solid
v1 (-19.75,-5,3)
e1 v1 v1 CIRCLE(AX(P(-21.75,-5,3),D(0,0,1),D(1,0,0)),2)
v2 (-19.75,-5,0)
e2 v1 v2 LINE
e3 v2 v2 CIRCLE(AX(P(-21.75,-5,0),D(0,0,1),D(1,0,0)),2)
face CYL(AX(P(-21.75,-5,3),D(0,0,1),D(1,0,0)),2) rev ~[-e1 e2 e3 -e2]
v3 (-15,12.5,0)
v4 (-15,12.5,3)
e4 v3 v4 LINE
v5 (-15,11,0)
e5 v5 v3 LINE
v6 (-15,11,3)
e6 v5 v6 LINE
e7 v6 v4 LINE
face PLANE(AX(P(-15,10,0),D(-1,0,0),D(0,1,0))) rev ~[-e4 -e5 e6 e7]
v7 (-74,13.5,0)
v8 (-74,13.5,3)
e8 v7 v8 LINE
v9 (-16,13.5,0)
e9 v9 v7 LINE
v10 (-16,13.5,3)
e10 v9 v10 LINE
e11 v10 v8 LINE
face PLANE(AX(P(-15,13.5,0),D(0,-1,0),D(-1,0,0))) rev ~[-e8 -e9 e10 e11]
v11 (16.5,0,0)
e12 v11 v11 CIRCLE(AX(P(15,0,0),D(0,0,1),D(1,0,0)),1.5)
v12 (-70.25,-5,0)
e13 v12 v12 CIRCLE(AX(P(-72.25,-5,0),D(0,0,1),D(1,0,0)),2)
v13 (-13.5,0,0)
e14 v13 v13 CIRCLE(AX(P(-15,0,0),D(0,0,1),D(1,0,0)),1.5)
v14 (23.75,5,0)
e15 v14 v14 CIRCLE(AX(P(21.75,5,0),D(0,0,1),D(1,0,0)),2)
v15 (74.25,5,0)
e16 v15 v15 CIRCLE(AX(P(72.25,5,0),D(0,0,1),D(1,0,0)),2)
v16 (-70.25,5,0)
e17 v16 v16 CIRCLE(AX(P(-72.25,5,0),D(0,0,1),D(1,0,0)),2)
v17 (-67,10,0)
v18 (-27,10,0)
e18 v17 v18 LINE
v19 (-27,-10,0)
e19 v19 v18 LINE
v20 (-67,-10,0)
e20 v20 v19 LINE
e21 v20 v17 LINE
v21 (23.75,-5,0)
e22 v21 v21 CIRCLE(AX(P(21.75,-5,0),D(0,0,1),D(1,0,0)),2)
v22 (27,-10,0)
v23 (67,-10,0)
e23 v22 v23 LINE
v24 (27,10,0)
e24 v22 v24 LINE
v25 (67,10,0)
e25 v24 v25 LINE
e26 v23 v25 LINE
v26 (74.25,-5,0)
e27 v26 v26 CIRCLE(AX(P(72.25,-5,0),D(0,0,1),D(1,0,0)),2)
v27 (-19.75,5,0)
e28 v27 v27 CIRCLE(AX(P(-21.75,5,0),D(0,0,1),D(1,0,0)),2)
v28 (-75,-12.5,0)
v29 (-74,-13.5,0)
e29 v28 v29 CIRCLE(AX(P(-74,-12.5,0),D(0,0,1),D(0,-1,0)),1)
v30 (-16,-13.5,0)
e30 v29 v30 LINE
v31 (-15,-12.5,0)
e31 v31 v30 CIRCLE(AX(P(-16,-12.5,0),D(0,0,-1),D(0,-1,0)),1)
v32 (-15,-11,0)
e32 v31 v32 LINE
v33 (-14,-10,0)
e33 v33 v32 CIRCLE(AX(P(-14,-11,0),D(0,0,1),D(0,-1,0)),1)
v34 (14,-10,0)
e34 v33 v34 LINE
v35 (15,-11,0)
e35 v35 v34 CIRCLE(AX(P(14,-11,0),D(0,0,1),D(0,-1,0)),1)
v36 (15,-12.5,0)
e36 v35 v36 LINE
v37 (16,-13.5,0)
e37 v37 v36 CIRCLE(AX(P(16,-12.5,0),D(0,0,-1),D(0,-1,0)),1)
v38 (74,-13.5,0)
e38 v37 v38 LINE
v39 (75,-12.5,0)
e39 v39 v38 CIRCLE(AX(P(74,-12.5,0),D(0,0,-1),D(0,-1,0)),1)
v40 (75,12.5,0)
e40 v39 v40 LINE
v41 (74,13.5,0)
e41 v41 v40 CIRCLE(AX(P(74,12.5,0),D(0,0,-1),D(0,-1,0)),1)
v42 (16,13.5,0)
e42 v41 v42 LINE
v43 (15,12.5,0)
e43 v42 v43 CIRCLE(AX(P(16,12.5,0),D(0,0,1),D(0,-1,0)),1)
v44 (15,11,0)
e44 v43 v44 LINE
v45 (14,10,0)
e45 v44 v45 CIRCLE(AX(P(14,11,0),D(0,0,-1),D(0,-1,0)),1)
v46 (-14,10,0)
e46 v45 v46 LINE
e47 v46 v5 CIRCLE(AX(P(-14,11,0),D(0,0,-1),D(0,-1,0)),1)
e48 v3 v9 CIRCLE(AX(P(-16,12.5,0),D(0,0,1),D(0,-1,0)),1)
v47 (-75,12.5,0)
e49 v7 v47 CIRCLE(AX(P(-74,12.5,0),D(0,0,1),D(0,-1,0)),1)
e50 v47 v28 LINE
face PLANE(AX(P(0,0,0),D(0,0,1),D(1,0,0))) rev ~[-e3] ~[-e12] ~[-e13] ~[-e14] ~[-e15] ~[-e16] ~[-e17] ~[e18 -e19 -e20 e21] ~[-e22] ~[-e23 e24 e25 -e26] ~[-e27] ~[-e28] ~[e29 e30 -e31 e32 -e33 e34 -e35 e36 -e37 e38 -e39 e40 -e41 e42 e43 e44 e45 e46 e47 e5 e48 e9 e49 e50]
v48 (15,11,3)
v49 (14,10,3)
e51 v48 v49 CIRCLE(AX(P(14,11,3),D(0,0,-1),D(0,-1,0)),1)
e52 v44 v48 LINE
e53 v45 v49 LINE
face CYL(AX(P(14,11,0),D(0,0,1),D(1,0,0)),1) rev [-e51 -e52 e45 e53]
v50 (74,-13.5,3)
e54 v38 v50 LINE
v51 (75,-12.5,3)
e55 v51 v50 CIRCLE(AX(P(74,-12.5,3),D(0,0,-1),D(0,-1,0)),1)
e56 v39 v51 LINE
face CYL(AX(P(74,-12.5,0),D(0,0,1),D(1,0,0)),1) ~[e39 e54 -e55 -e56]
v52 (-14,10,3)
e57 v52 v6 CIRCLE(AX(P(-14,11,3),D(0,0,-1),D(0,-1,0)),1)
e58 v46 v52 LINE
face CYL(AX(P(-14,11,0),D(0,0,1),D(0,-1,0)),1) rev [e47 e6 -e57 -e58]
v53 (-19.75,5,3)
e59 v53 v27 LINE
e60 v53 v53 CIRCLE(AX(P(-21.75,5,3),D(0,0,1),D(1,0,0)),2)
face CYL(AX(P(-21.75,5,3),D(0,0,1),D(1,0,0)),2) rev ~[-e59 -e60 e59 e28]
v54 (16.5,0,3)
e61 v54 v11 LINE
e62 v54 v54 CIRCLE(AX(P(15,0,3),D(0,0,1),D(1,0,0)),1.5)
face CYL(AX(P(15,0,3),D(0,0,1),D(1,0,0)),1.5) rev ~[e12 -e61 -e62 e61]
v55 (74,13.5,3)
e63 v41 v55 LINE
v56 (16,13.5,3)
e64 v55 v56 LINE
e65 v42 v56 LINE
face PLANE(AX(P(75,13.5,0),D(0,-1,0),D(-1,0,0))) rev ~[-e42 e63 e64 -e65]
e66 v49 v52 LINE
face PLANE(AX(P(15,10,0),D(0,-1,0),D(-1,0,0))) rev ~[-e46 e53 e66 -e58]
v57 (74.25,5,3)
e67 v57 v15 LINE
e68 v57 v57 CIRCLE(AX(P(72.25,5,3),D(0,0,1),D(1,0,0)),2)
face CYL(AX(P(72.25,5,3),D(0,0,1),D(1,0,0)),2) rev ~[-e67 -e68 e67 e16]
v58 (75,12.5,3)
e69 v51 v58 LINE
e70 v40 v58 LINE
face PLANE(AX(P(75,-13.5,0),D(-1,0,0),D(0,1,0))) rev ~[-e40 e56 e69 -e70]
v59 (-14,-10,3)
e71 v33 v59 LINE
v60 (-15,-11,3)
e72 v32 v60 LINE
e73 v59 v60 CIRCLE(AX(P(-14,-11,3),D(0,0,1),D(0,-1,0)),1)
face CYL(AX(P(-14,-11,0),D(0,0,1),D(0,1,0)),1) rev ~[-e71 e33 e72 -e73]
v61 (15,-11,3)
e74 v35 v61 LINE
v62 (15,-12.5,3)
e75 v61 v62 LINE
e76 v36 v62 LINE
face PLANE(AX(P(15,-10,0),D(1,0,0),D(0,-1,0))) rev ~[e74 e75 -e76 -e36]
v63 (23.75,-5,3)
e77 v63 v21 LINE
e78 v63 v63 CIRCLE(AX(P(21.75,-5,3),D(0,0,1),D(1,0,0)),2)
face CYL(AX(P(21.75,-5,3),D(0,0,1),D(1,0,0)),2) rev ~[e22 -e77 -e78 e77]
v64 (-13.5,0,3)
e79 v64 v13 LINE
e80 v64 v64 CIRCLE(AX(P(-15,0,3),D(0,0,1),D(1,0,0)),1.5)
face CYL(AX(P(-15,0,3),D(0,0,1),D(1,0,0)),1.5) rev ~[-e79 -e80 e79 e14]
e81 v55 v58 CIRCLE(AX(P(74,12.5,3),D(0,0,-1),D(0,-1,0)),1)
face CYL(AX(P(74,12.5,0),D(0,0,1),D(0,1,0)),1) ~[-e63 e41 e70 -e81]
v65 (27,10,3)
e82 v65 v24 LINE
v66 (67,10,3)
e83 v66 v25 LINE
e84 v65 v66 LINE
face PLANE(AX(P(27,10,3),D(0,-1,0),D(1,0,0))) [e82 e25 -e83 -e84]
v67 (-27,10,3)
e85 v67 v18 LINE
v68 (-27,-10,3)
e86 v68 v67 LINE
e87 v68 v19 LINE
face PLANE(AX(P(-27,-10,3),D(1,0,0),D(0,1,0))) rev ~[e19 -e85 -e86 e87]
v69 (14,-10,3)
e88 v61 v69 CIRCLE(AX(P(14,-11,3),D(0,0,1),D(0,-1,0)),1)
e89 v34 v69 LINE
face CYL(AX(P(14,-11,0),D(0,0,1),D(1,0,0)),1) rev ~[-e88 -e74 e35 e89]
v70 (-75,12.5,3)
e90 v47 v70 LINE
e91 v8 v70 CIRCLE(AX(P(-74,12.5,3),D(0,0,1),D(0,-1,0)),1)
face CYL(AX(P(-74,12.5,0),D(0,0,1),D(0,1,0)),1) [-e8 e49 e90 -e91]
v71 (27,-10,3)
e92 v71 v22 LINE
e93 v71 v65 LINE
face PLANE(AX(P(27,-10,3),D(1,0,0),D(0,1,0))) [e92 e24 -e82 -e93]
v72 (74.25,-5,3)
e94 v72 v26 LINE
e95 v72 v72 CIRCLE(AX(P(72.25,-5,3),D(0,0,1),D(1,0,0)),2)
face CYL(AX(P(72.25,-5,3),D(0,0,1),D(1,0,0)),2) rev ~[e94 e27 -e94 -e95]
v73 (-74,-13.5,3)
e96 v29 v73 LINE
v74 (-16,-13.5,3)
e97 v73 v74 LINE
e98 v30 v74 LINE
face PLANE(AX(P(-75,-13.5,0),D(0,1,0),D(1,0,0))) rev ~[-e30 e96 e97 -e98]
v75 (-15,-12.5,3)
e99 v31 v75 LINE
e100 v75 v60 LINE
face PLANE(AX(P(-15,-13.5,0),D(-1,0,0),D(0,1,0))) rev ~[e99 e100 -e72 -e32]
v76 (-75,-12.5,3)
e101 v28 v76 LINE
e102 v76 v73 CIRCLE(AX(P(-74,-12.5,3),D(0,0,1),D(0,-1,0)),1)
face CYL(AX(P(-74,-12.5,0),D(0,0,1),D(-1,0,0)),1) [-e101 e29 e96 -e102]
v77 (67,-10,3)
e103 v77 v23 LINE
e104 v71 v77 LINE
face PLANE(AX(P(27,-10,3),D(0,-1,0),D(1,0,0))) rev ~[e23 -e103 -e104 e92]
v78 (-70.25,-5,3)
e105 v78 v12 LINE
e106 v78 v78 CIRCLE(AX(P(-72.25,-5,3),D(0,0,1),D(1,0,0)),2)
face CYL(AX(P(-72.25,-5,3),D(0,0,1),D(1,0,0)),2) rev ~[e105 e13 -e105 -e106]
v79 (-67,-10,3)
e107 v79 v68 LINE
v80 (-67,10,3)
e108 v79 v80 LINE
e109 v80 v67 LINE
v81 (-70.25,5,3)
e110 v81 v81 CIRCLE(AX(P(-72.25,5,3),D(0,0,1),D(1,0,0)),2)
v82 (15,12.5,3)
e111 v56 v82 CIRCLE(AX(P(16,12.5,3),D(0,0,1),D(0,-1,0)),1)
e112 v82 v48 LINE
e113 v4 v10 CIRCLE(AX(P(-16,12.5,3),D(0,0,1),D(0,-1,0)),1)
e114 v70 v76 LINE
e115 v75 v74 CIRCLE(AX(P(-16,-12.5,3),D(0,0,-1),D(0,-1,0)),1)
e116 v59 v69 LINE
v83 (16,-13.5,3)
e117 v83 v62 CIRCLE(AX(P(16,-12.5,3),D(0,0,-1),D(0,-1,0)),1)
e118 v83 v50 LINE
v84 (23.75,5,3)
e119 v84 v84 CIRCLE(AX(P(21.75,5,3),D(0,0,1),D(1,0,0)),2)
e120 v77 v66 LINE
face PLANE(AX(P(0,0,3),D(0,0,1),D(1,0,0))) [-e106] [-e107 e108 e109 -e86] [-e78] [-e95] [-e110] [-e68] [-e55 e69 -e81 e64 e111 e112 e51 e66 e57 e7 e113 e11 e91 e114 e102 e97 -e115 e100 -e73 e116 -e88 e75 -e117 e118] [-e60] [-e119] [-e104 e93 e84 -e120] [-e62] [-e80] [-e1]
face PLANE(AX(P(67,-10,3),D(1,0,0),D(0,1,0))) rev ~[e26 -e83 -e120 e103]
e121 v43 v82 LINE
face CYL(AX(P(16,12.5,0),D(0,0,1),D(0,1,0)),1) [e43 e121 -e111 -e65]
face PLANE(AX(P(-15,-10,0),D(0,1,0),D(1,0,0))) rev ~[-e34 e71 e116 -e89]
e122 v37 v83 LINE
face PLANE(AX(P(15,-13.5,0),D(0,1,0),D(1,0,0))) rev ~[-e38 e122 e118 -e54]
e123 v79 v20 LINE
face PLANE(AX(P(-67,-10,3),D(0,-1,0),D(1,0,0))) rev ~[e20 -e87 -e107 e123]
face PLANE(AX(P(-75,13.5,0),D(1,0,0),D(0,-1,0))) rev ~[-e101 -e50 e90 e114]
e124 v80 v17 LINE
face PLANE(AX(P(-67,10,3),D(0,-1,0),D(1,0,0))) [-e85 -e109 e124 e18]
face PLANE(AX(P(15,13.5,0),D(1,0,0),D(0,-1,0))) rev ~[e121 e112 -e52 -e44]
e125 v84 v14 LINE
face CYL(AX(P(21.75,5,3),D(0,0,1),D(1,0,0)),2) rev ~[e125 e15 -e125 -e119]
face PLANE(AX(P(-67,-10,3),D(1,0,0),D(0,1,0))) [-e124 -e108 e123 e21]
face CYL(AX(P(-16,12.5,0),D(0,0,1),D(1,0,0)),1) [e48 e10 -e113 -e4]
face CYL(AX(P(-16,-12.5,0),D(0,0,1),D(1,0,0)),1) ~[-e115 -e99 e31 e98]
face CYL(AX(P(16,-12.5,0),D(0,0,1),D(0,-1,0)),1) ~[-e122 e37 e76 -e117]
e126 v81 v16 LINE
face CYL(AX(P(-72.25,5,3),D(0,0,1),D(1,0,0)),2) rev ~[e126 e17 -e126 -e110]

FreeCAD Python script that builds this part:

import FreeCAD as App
import Part
import Sketcher

V = App.Vector
Q = App.Units.Quantity


def edges_at(feature, points):
    """Names of the edges that pass closest to the given points."""
    edges = feature.Shape.Edges
    near = lambda p: min(range(len(edges)), key=lambda i: edges[i].distToShape(Part.Vertex(*p))[0])
    return sorted({f"Edge{near(p) + 1}" for p in points})

doc = App.newDocument("Part")
body = doc.addObject("PartDesign::Body", "Body")

# Sketch on XY plane
sketch1 = body.newObject("Sketcher::SketchObject", "Sketch")
sketch1.AttachmentSupport = (doc.getObject("XY_Plane"), [""])
sketch1.MapMode = "FlatFace"
sketch1.addGeometry(Part.LineSegment(V(75, 13.5, 0), V(15, 13.5, 0)), False)
sketch1.addGeometry(Part.LineSegment(V(15, 13.5, 0), V(15, 10, 0)), False)
sketch1.addGeometry(Part.LineSegment(V(15, 10, 0), V(-15, 10, 0)), False)
sketch1.addGeometry(Part.LineSegment(V(-15, 10, 0), V(-15, 13.5, 0)), False)
sketch1.addGeometry(Part.LineSegment(V(-15, 13.5, 0), V(-75, 13.5, 0)), False)
sketch1.addGeometry(Part.LineSegment(V(-75, 13.5, 0), V(-75, -13.5, 0)), False)
sketch1.addGeometry(Part.LineSegment(V(-75, -13.5, 0), V(-15, -13.5, 0)), False)
sketch1.addGeometry(Part.LineSegment(V(-15, -13.5, 0), V(-15, -10, 0)), False)
sketch1.addGeometry(Part.LineSegment(V(-15, -10, 0), V(15, -10, 0)), False)
sketch1.addGeometry(Part.LineSegment(V(15, -10, 0), V(15, -13.5, 0)), False)
sketch1.addGeometry(Part.LineSegment(V(15, -13.5, 0), V(75, -13.5, 0)), False)
sketch1.addGeometry(Part.LineSegment(V(75, -13.5, 0), V(75, 13.5, 0)), False)
sketch1.addConstraint(Sketcher.Constraint("Coincident", 0, 2, 1, 1))
sketch1.addConstraint(Sketcher.Constraint("Coincident", 1, 2, 2, 1))
sketch1.addConstraint(Sketcher.Constraint("Coincident", 2, 2, 3, 1))
sketch1.addConstraint(Sketcher.Constraint("Coincident", 3, 2, 4, 1))
sketch1.addConstraint(Sketcher.Constraint("Coincident", 4, 2, 5, 1))
sketch1.addConstraint(Sketcher.Constraint("Coincident", 5, 2, 6, 1))
sketch1.addConstraint(Sketcher.Constraint("Coincident", 6, 2, 7, 1))
sketch1.addConstraint(Sketcher.Constraint("Coincident", 7, 2, 8, 1))
sketch1.addConstraint(Sketcher.Constraint("Coincident", 8, 2, 9, 1))
sketch1.addConstraint(Sketcher.Constraint("Coincident", 9, 2, 10, 1))
sketch1.addConstraint(Sketcher.Constraint("Coincident", 10, 2, 11, 1))
sketch1.addConstraint(Sketcher.Constraint("Coincident", 11, 2, 0, 1))
sketch1.addConstraint(Sketcher.Constraint("Horizontal", 0))
sketch1.addConstraint(Sketcher.Constraint("Vertical", 1))
sketch1.addConstraint(Sketcher.Constraint("Horizontal", 2))
sketch1.addConstraint(Sketcher.Constraint("Vertical", 3))
sketch1.addConstraint(Sketcher.Constraint("Horizontal", 4))
sketch1.addConstraint(Sketcher.Constraint("Vertical", 5))
sketch1.addConstraint(Sketcher.Constraint("Horizontal", 6))
sketch1.addConstraint(Sketcher.Constraint("Vertical", 7))
sketch1.addConstraint(Sketcher.Constraint("Horizontal", 8))
sketch1.addConstraint(Sketcher.Constraint("Vertical", 9))
sketch1.addConstraint(Sketcher.Constraint("Horizontal", 10))
sketch1.addConstraint(Sketcher.Constraint("Vertical", 11))
sketch1.addConstraint(Sketcher.Constraint("Symmetric", 0, 2, 6, 2, -1, 1))
sketch1.addConstraint(Sketcher.Constraint("Symmetric", 2, 2, 8, 2, -1, 1))
sketch1.addConstraint(Sketcher.Constraint("Symmetric", 4, 2, 10, 2, -1, 1))
sketch1.addConstraint(Sketcher.Constraint("Symmetric", 0, 2, 3, 2, -2))
sketch1.addConstraint(Sketcher.Constraint("DistanceX", 0, 2, 0, 1, Q("60 mm")))
sketch1.addConstraint(Sketcher.Constraint("DistanceX", 2, 2, 2, 1, Q("30 mm")))
sketch1.addConstraint(Sketcher.Constraint("DistanceY", 5, 2, 5, 1, Q("27 mm")))
sketch1.addConstraint(Sketcher.Constraint("DistanceY", 1, 2, 1, 1, Q("3.5 mm")))
pad1 = body.newObject("PartDesign::Pad", "Pad")
pad1.Profile = sketch1
pad1.Length = 3

# Sketch on XY plane
sketch2 = body.newObject("Sketcher::SketchObject", "Sketch001")
sketch2.AttachmentSupport = (doc.getObject("XY_Plane"), [""])
sketch2.MapMode = "FlatFace"
sketch2.AttachmentOffset = App.Placement(V(0, 0, 3), App.Rotation())
sketch2.addGeometry(Part.Circle(V(-21.75, -5, 0), V(0, 0, 1), 2), False)
sketch2.addGeometry(Part.Circle(V(-21.75, 5, 0), V(0, 0, 1), 2), False)
sketch2.addGeometry(Part.Circle(V(-72.25, -5, 0), V(0, 0, 1), 2), False)
sketch2.addGeometry(Part.Circle(V(-72.25, 5, 0), V(0, 0, 1), 2), False)
sketch2.addGeometry(Part.Circle(V(72.25, 5, 0), V(0, 0, 1), 2), False)
sketch2.addGeometry(Part.Circle(V(72.25, -5, 0), V(0, 0, 1), 2), False)
sketch2.addGeometry(Part.Circle(V(21.75, 5, 0), V(0, 0, 1), 2), False)
sketch2.addGeometry(Part.Circle(V(21.75, -5, 0), V(0, 0, 1), 2), False)
sketch2.addGeometry(Part.LineSegment(V(-67, 10, 0), V(-67, -10, 0)), False)
sketch2.addGeometry(Part.LineSegment(V(-67, -10, 0), V(-27, -10, 0)), False)
sketch2.addGeometry(Part.LineSegment(V(-27, -10, 0), V(-27, 10, 0)), False)
sketch2.addGeometry(Part.LineSegment(V(-27, 10, 0), V(-67, 10, 0)), False)
sketch2.addGeometry(Part.LineSegment(V(27, 10, 0), V(27, -10, 0)), False)
sketch2.addGeometry(Part.LineSegment(V(27, -10, 0), V(67, -10, 0)), False)
sketch2.addGeometry(Part.LineSegment(V(67, -10, 0), V(67, 10, 0)), False)
sketch2.addGeometry(Part.LineSegment(V(67, 10, 0), V(27, 10, 0)), False)
sketch2.addConstraint(Sketcher.Constraint("Coincident", 8, 2, 9, 1))
sketch2.addConstraint(Sketcher.Constraint("Coincident", 9, 2, 10, 1))
sketch2.addConstraint(Sketcher.Constraint("Coincident", 10, 2, 11, 1))
sketch2.addConstraint(Sketcher.Constraint("Coincident", 11, 2, 8, 1))
sketch2.addConstraint(Sketcher.Constraint("Coincident", 12, 2, 13, 1))
sketch2.addConstraint(Sketcher.Constraint("Coincident", 13, 2, 14, 1))
sketch2.addConstraint(Sketcher.Constraint("Coincident", 14, 2, 15, 1))
sketch2.addConstraint(Sketcher.Constraint("Coincident", 15, 2, 12, 1))
sketch2.addConstraint(Sketcher.Constraint("Vertical", 8))
sketch2.addConstraint(Sketcher.Constraint("Horizontal", 9))
sketch2.addConstraint(Sketcher.Constraint("Vertical", 10))
sketch2.addConstraint(Sketcher.Constraint("Horizontal", 11))
sketch2.addConstraint(Sketcher.Constraint("Vertical", 12))
sketch2.addConstraint(Sketcher.Constraint("Horizontal", 13))
sketch2.addConstraint(Sketcher.Constraint("Vertical", 14))
sketch2.addConstraint(Sketcher.Constraint("Horizontal", 15))
sketch2.addConstraint(Sketcher.Constraint("Equal", 0, 1))
sketch2.addConstraint(Sketcher.Constraint("Equal", 1, 2))
sketch2.addConstraint(Sketcher.Constraint("Equal", 2, 3))
sketch2.addConstraint(Sketcher.Constraint("Equal", 3, 4))
sketch2.addConstraint(Sketcher.Constraint("Equal", 4, 5))
sketch2.addConstraint(Sketcher.Constraint("Equal", 5, 6))
sketch2.addConstraint(Sketcher.Constraint("Equal", 6, 7))
sketch2.addConstraint(Sketcher.Constraint("Symmetric", 2, 3, 4, 3, -1, 1))
sketch2.addConstraint(Sketcher.Constraint("Symmetric", 3, 3, 5, 3, -1, 1))
sketch2.addConstraint(Sketcher.Constraint("Symmetric", 0, 3, 6, 3, -1, 1))
sketch2.addConstraint(Sketcher.Constraint("Symmetric", 1, 3, 7, 3, -1, 1))
sketch2.addConstraint(Sketcher.Constraint("Symmetric", 10, 2, 12, 2, -1, 1))
sketch2.addConstraint(Sketcher.Constraint("Symmetric", 8, 2, 14, 2, -1, 1))
sketch2.addConstraint(Sketcher.Constraint("Symmetric", 3, 3, 4, 3, -2))
sketch2.addConstraint(Sketcher.Constraint("Symmetric", 1, 3, 6, 3, -2))
sketch2.addConstraint(Sketcher.Constraint("Horizontal", 0, 3, 2, 3))
sketch2.addConstraint(Sketcher.Constraint("Horizontal", 9, 2, 12, 2))
sketch2.addConstraint(Sketcher.Constraint("Diameter", 0, Q("4 mm")))
sketch2.addConstraint(Sketcher.Constraint("DistanceX", 9, 1, 9, 2, Q("40 mm")))
sketch2.addConstraint(Sketcher.Constraint("DistanceY", 8, 2, 8, 1, Q("20 mm")))
sketch2.addConstraint(Sketcher.Constraint("DistanceY", 0, 3, -1, 1, Q("5 mm")))
sketch2.addConstraint(Sketcher.Constraint("DistanceX", 8, 2, -1, 1, Q("67 mm")))
sketch2.addConstraint(Sketcher.Constraint("DistanceX", 1, 3, 4, 3, Q("94 mm")))
sketch2.addConstraint(Sketcher.Constraint("DistanceX", 2, 3, 0, 3, Q("50.5 mm")))
pocket1 = body.newObject("PartDesign::Pocket", "Pocket")
pocket1.Profile = sketch2
pocket1.Type = "ThroughAll"
doc.recompute()

fillet = body.newObject("PartDesign::Fillet", "Fillet")
fillet.Base = (pocket1, edges_at(pocket1, [
    (-75, -13.5, 1.5),
    (-75, 13.5, 1.5),
    (-15, 13.5, 1.5),
    (-15, 10, 1.5),
    (15, 10, 1.5),
    (15, 13.5, 1.5),
    (75, 13.5, 1.5),
    (75, -13.5, 1.5),
    (15, -13.5, 1.5),
    (15, -10, 1.5),
    (-15, -10, 1.5),
    (-15, -13.5, 1.5),
]))
fillet.Radius = 1

# Sketch on XY plane
sketch3 = body.newObject("Sketcher::SketchObject", "Sketch002")
sketch3.AttachmentSupport = (doc.getObject("XY_Plane"), [""])
sketch3.MapMode = "FlatFace"
sketch3.AttachmentOffset = App.Placement(V(0, 0, 3), App.Rotation())
sketch3.addGeometry(Part.Circle(V(15, 0, 0), V(0, 0, 1), 1.5), False)
sketch3.addGeometry(Part.Circle(V(-15, 0, 0), V(0, 0, 1), 1.5), False)
sketch3.addConstraint(Sketcher.Constraint("Equal", 0, 1))
sketch3.addConstraint(Sketcher.Constraint("Symmetric", 0, 3, 1, 3, -1, 1))
sketch3.addConstraint(Sketcher.Constraint("PointOnObject", 0, 3, -1))
sketch3.addConstraint(Sketcher.Constraint("Diameter", 0, Q("3 mm")))
sketch3.addConstraint(Sketcher.Constraint("DistanceX", -1, 1, 0, 3, Q("15 mm")))
pocket2 = body.newObject("PartDesign::Pocket", "Pocket001")
pocket2.Profile = sketch3
pocket2.Length = 3

doc.recompute()
